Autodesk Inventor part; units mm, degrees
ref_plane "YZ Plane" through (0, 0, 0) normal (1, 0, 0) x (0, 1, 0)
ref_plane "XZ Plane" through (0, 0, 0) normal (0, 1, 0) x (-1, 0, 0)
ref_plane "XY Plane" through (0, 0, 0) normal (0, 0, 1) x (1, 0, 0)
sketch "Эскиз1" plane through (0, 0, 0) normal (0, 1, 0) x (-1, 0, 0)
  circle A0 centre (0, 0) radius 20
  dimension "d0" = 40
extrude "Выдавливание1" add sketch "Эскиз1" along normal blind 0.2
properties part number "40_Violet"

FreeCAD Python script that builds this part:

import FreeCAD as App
import Part
import Sketcher
Q = App.Units.Quantity

doc = App.newDocument("Part")
body = doc.addObject("PartDesign::Body", "Body")

# Sketch on XZ plane
sketch1 = doc.addObject("Sketcher::SketchObject", "Sketch")
body.addObject(sketch1)
sketch1.AttachmentSupport = (doc.XZ_Plane, [""])
sketch1.MapMode = "FlatFace"
sketch1.addGeometry(Part.Circle(App.Vector(0, 0, 0), App.Vector(0, 0, 1), 20), False)
sketch1.addConstraint([
    Sketcher.Constraint("Coincident", 0, 3, -1, 1),
    Sketcher.Constraint("Diameter", 0, Q("40 mm")),
])
pad1 = doc.addObject("PartDesign::Pad", "Pad")
body.addObject(pad1)
pad1.Profile = sketch1
pad1.Length = 0.2
pad1.Reversed = True

doc.recompute()
